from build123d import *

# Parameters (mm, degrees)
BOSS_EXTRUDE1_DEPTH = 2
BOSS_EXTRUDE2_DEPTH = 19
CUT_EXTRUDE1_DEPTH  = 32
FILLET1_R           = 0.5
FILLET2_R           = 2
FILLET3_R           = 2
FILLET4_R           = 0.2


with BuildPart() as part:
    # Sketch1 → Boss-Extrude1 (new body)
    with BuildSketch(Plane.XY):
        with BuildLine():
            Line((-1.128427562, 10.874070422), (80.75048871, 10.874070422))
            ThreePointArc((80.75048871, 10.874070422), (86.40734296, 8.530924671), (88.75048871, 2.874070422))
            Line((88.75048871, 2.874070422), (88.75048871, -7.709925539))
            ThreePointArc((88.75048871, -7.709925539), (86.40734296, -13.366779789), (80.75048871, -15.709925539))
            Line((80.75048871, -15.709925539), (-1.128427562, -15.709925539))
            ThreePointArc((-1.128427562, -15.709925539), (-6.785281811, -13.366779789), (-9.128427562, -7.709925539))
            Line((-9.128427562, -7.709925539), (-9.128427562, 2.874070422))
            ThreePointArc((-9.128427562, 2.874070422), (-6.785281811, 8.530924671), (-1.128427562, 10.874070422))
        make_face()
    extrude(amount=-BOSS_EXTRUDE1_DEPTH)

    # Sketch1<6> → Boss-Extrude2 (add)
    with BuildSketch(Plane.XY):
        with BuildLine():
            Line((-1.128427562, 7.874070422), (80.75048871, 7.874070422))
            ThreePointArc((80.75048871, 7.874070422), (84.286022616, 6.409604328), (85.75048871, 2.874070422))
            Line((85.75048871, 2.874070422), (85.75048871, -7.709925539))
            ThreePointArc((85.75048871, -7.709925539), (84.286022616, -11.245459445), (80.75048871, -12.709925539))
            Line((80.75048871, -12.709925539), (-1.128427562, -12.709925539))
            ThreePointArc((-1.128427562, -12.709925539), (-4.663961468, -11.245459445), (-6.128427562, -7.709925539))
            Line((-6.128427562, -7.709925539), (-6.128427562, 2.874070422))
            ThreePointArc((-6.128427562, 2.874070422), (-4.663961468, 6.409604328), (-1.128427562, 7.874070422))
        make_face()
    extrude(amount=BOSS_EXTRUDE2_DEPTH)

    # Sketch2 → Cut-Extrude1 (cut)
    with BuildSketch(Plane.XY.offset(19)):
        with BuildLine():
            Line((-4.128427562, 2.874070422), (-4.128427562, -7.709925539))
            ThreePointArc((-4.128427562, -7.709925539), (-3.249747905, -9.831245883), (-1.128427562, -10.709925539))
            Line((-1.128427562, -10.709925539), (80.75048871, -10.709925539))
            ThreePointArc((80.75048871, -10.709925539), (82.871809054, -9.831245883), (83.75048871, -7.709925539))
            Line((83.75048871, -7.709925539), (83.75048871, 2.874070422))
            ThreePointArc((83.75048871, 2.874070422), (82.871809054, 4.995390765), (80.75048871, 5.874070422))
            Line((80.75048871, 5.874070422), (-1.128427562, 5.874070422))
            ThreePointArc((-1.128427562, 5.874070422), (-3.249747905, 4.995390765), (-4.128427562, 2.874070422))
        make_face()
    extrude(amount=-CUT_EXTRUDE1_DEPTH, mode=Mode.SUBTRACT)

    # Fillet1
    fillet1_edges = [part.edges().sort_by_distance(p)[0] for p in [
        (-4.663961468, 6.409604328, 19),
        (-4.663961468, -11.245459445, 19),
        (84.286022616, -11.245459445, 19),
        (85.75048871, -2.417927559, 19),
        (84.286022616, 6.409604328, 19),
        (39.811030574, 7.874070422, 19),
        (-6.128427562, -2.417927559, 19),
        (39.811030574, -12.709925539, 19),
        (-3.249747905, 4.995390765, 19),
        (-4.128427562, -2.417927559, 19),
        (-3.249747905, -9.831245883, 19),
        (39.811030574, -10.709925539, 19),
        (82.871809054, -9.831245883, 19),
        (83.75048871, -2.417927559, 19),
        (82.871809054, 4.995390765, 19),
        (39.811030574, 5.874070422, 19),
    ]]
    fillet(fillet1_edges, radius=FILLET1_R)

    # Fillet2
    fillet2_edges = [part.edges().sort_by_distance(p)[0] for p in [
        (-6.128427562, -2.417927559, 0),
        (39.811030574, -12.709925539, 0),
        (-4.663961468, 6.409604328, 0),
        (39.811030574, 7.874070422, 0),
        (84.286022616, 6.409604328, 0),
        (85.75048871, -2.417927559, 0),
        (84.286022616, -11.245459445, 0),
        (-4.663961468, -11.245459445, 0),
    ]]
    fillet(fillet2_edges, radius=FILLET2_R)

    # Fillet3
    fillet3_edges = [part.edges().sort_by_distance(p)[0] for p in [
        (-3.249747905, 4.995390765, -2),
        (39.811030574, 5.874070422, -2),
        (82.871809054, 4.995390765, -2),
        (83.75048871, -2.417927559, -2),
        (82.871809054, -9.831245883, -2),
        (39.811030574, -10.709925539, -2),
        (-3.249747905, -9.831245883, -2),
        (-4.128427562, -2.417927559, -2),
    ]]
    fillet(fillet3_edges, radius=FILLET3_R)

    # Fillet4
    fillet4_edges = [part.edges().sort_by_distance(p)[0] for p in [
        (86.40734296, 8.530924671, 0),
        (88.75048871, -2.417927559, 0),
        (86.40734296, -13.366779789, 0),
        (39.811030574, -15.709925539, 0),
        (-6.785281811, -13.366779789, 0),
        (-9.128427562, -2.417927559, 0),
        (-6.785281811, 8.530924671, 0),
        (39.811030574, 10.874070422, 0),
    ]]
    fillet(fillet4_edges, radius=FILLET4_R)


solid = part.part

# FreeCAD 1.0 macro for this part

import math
import FreeCAD as App
import Part
import Sketcher

V = App.Vector
Q = App.Units.Quantity


def edges_at(feature, points):
    """Names of the edges that pass closest to the given points."""
    edges = feature.Shape.Edges
    near = lambda p: min(range(len(edges)), key=lambda i: edges[i].distToShape(Part.Vertex(*p))[0])
    return sorted({f"Edge{near(p) + 1}" for p in points})

doc = App.newDocument("Part")
body = doc.addObject("PartDesign::Body", "Body")

# Sketch on XY plane
sketch1 = body.newObject("Sketcher::SketchObject", "Sketch")
sketch1.AttachmentSupport = (doc.getObject("XY_Plane"), [""])
sketch1.MapMode = "FlatFace"
sketch1.addGeometry(Part.LineSegment(V(80.750489, 10.87407, 0), V(-1.128428, 10.87407, 0)), False)
sketch1.addGeometry(Part.ArcOfCircle(Part.Circle(V(-1.128428, 2.87407, 0), V(0, 0, 1), 8), math.radians(90), math.radians(180)), False)
sketch1.addGeometry(Part.LineSegment(V(-9.128428, 2.87407, 0), V(-9.128428, -7.709926, 0)), False)
sketch1.addGeometry(Part.ArcOfCircle(Part.Circle(V(-1.128428, -7.709926, 0), V(0, 0, 1), 8), math.radians(180), math.radians(270)), False)
sketch1.addGeometry(Part.LineSegment(V(-1.128428, -15.709926, 0), V(80.750489, -15.709926, 0)), False)
sketch1.addGeometry(Part.ArcOfCircle(Part.Circle(V(80.750489, -7.709926, 0), V(0, 0, 1), 8), math.radians(-90), math.radians(0)), False)
sketch1.addGeometry(Part.LineSegment(V(88.750489, -7.709926, 0), V(88.750489, 2.87407, 0)), False)
sketch1.addGeometry(Part.ArcOfCircle(Part.Circle(V(80.750489, 2.87407, 0), V(0, 0, 1), 8), math.radians(0), math.radians(90)), False)
sketch1.addConstraint(Sketcher.Constraint("Tangent", 0, 2, 1, 1))
sketch1.addConstraint(Sketcher.Constraint("Tangent", 1, 2, 2, 1))
sketch1.addConstraint(Sketcher.Constraint("Tangent", 2, 2, 3, 1))
sketch1.addConstraint(Sketcher.Constraint("Tangent", 3, 2, 4, 1))
sketch1.addConstraint(Sketcher.Constraint("Tangent", 4, 2, 5, 1))
sketch1.addConstraint(Sketcher.Constraint("Tangent", 5, 2, 6, 1))
sketch1.addConstraint(Sketcher.Constraint("Tangent", 6, 2, 7, 1))
sketch1.addConstraint(Sketcher.Constraint("Tangent", 7, 2, 0, 1))
sketch1.addConstraint(Sketcher.Constraint("Horizontal", 0))
sketch1.addConstraint(Sketcher.Constraint("Vertical", 2))
sketch1.addConstraint(Sketcher.Constraint("Horizontal", 4))
sketch1.addConstraint(Sketcher.Constraint("Vertical", 6))
sketch1.addConstraint(Sketcher.Constraint("Equal", 1, 3))
sketch1.addConstraint(Sketcher.Constraint("Equal", 3, 5))
sketch1.addConstraint(Sketcher.Constraint("Equal", 5, 7))
sketch1.addConstraint(Sketcher.Constraint("Radius", 1, Q("8 mm")))
sketch1.addConstraint(Sketcher.Constraint("DistanceX", 0, 2, 0, 1, Q("81.878916 mm")))
sketch1.addConstraint(Sketcher.Constraint("DistanceY", 2, 2, 2, 1, Q("10.583996 mm")))
sketch1.addConstraint(Sketcher.Constraint("DistanceY", -1, 1, 1, 3, Q("2.87407 mm")))
sketch1.addConstraint(Sketcher.Constraint("DistanceX", -1, 1, 5, 3, Q("80.750489 mm")))
pad1 = body.newObject("PartDesign::Pad", "Pad")
pad1.Profile = sketch1
pad1.Length = 2
pad1.Reversed = True

# Sketch on XY plane
sketch2 = body.newObject("Sketcher::SketchObject", "Sketch001")
sketch2.AttachmentSupport = (doc.getObject("XY_Plane"), [""])
sketch2.MapMode = "FlatFace"
sketch2.addGeometry(Part.LineSegment(V(80.750489, 7.87407, 0), V(-1.128428, 7.87407, 0)), False)
sketch2.addGeometry(Part.ArcOfCircle(Part.Circle(V(-1.128428, 2.87407, 0), V(0, 0, 1), 5), math.radians(90), math.radians(180)), False)
sketch2.addGeometry(Part.LineSegment(V(-6.128428, 2.87407, 0), V(-6.128428, -7.709926, 0)), False)
sketch2.addGeometry(Part.ArcOfCircle(Part.Circle(V(-1.128428, -7.709926, 0), V(0, 0, 1), 5), math.radians(180), math.radians(270)), False)
sketch2.addGeometry(Part.LineSegment(V(-1.128428, -12.709926, 0), V(80.750489, -12.709926, 0)), False)
sketch2.addGeometry(Part.ArcOfCircle(Part.Circle(V(80.750489, -7.709926, 0), V(0, 0, 1), 5), math.radians(-90), math.radians(0)), False)
sketch2.addGeometry(Part.LineSegment(V(85.750489, -7.709926, 0), V(85.750489, 2.87407, 0)), False)
sketch2.addGeometry(Part.ArcOfCircle(Part.Circle(V(80.750489, 2.87407, 0), V(0, 0, 1), 5), math.radians(0), math.radians(90)), False)
sketch2.addConstraint(Sketcher.Constraint("Tangent", 0, 2, 1, 1))
sketch2.addConstraint(Sketcher.Constraint("Tangent", 1, 2, 2, 1))
sketch2.addConstraint(Sketcher.Constraint("Tangent", 2, 2, 3, 1))
sketch2.addConstraint(Sketcher.Constraint("Tangent", 3, 2, 4, 1))
sketch2.addConstraint(Sketcher.Constraint("Tangent", 4, 2, 5, 1))
sketch2.addConstraint(Sketcher.Constraint("Tangent", 5, 2, 6, 1))
sketch2.addConstraint(Sketcher.Constraint("Tangent", 6, 2, 7, 1))
sketch2.addConstraint(Sketcher.Constraint("Tangent", 7, 2, 0, 1))
sketch2.addConstraint(Sketcher.Constraint("Horizontal", 0))
sketch2.addConstraint(Sketcher.Constraint("Vertical", 2))
sketch2.addConstraint(Sketcher.Constraint("Horizontal", 4))
sketch2.addConstraint(Sketcher.Constraint("Vertical", 6))
sketch2.addConstraint(Sketcher.Constraint("Equal", 1, 3))
sketch2.addConstraint(Sketcher.Constraint("Equal", 3, 5))
sketch2.addConstraint(Sketcher.Constraint("Equal", 5, 7))
sketch2.addConstraint(Sketcher.Constraint("Radius", 1, Q("5 mm")))
sketch2.addConstraint(Sketcher.Constraint("DistanceX", 0, 2, 0, 1, Q("81.878916 mm")))
sketch2.addConstraint(Sketcher.Constraint("DistanceY", 2, 2, 2, 1, Q("10.583996 mm")))
sketch2.addConstraint(Sketcher.Constraint("DistanceY", -1, 1, 1, 3, Q("2.87407 mm")))
sketch2.addConstraint(Sketcher.Constraint("DistanceX", -1, 1, 5, 3, Q("80.750489 mm")))
pad2 = body.newObject("PartDesign::Pad", "Pad001")
pad2.Profile = sketch2
pad2.Length = 19

# Sketch on XY plane
sketch3 = body.newObject("Sketcher::SketchObject", "Sketch002")
sketch3.AttachmentSupport = (doc.getObject("XY_Plane"), [""])
sketch3.MapMode = "FlatFace"
sketch3.AttachmentOffset = App.Placement(V(0, 0, 19), App.Rotation())
sketch3.addGeometry(Part.LineSegment(V(-4.128428, 2.87407, 0), V(-4.128428, -7.709926, 0)), False)
sketch3.addGeometry(Part.ArcOfCircle(Part.Circle(V(-1.128428, -7.709926, 0), V(0, 0, 1), 3), math.radians(180), math.radians(270)), False)
sketch3.addGeometry(Part.LineSegment(V(-1.128428, -10.709926, 0), V(80.750489, -10.709926, 0)), False)
sketch3.addGeometry(Part.ArcOfCircle(Part.Circle(V(80.750489, -7.709926, 0), V(0, 0, 1), 3), math.radians(-90), math.radians(0)), False)
sketch3.addGeometry(Part.LineSegment(V(83.750489, -7.709926, 0), V(83.750489, 2.87407, 0)), False)
sketch3.addGeometry(Part.ArcOfCircle(Part.Circle(V(80.750489, 2.87407, 0), V(0, 0, 1), 3), math.radians(0), math.radians(90)), False)
sketch3.addGeometry(Part.LineSegment(V(80.750489, 5.87407, 0), V(-1.128428, 5.87407, 0)), False)
sketch3.addGeometry(Part.ArcOfCircle(Part.Circle(V(-1.128428, 2.87407, 0), V(0, 0, 1), 3), math.radians(90), math.radians(180)), False)
sketch3.addConstraint(Sketcher.Constraint("Tangent", 0, 2, 1, 1))
sketch3.addConstraint(Sketcher.Constraint("Tangent", 1, 2, 2, 1))
sketch3.addConstraint(Sketcher.Constraint("Tangent", 2, 2, 3, 1))
sketch3.addConstraint(Sketcher.Constraint("Tangent", 3, 2, 4, 1))
sketch3.addConstraint(Sketcher.Constraint("Tangent", 4, 2, 5, 1))
sketch3.addConstraint(Sketcher.Constraint("Tangent", 5, 2, 6, 1))
sketch3.addConstraint(Sketcher.Constraint("Tangent", 6, 2, 7, 1))
sketch3.addConstraint(Sketcher.Constraint("Tangent", 7, 2, 0, 1))
sketch3.addConstraint(Sketcher.Constraint("Vertical", 0))
sketch3.addConstraint(Sketcher.Constraint("Horizontal", 2))
sketch3.addConstraint(Sketcher.Constraint("Vertical", 4))
sketch3.addConstraint(Sketcher.Constraint("Horizontal", 6))
sketch3.addConstraint(Sketcher.Constraint("Equal", 1, 3))
sketch3.addConstraint(Sketcher.Constraint("Equal", 3, 5))
sketch3.addConstraint(Sketcher.Constraint("Equal", 5, 7))
sketch3.addConstraint(Sketcher.Constraint("Radius", 1, Q("3 mm")))
sketch3.addConstraint(Sketcher.Constraint("DistanceX", 2, 1, 2, 2, Q("81.878916 mm")))
sketch3.addConstraint(Sketcher.Constraint("DistanceY", 0, 2, 0, 1, Q("10.583996 mm")))
sketch3.addConstraint(Sketcher.Constraint("DistanceX", -1, 1, 3, 3, Q("80.750489 mm")))
sketch3.addConstraint(Sketcher.Constraint("DistanceY", -1, 1, 5, 3, Q("2.87407 mm")))
pocket1 = body.newObject("PartDesign::Pocket", "Pocket")
pocket1.Profile = sketch3
pocket1.Length = 32
doc.recompute()

fillet = body.newObject("PartDesign::Fillet", "Fillet")
fillet.Base = (pocket1, edges_at(pocket1, [
    (-4.664, 6.41, 19),
    (-4.664, -11.245, 19),
    (84.286, -11.245, 19),
    (85.75, -2.418, 19),
    (84.286, 6.41, 19),
    (39.811, 7.874, 19),
    (-6.128, -2.418, 19),
    (39.811, -12.71, 19),
    (-3.25, 4.995, 19),
    (-4.128, -2.418, 19),
    (-3.25, -9.831, 19),
    (39.811, -10.71, 19),
    (82.872, -9.831, 19),
    (83.75, -2.418, 19),
    (82.872, 4.995, 19),
    (39.811, 5.874, 19),
]))
fillet.Radius = 0.5
doc.recompute()

fillet2 = body.newObject("PartDesign::Fillet", "Fillet001")
fillet2.Base = (fillet, edges_at(fillet, [
    (-6.128, -2.418, 0),
    (39.811, -12.71, 0),
    (-4.664, 6.41, 0),
    (39.811, 7.874, 0),
    (84.286, 6.41, 0),
    (85.75, -2.418, 0),
    (84.286, -11.245, 0),
    (-4.664, -11.245, 0),
]))
fillet2.Radius = 2
doc.recompute()

fillet3 = body.newObject("PartDesign::Fillet", "Fillet002")
fillet3.Base = (fillet2, edges_at(fillet2, [
    (-3.25, 4.995, -2),
    (39.811, 5.874, -2),
    (82.872, 4.995, -2),
    (83.75, -2.418, -2),
    (82.872, -9.831, -2),
    (39.811, -10.71, -2),
    (-3.25, -9.831, -2),
    (-4.128, -2.418, -2),
]))
fillet3.Radius = 2
doc.recompute()

fillet4 = body.newObject("PartDesign::Fillet", "Fillet003")
fillet4.Base = (fillet3, edges_at(fillet3, [
    (86.407, 8.531, 0),
    (88.75, -2.418, 0),
    (86.407, -13.367, 0),
    (39.811, -15.71, 0),
    (-6.785, -13.367, 0),
    (-9.128, -2.418, 0),
    (-6.785, 8.531, 0),
    (39.811, 10.874, 0),
]))
fillet4.Radius = 0.2

doc.recompute()
